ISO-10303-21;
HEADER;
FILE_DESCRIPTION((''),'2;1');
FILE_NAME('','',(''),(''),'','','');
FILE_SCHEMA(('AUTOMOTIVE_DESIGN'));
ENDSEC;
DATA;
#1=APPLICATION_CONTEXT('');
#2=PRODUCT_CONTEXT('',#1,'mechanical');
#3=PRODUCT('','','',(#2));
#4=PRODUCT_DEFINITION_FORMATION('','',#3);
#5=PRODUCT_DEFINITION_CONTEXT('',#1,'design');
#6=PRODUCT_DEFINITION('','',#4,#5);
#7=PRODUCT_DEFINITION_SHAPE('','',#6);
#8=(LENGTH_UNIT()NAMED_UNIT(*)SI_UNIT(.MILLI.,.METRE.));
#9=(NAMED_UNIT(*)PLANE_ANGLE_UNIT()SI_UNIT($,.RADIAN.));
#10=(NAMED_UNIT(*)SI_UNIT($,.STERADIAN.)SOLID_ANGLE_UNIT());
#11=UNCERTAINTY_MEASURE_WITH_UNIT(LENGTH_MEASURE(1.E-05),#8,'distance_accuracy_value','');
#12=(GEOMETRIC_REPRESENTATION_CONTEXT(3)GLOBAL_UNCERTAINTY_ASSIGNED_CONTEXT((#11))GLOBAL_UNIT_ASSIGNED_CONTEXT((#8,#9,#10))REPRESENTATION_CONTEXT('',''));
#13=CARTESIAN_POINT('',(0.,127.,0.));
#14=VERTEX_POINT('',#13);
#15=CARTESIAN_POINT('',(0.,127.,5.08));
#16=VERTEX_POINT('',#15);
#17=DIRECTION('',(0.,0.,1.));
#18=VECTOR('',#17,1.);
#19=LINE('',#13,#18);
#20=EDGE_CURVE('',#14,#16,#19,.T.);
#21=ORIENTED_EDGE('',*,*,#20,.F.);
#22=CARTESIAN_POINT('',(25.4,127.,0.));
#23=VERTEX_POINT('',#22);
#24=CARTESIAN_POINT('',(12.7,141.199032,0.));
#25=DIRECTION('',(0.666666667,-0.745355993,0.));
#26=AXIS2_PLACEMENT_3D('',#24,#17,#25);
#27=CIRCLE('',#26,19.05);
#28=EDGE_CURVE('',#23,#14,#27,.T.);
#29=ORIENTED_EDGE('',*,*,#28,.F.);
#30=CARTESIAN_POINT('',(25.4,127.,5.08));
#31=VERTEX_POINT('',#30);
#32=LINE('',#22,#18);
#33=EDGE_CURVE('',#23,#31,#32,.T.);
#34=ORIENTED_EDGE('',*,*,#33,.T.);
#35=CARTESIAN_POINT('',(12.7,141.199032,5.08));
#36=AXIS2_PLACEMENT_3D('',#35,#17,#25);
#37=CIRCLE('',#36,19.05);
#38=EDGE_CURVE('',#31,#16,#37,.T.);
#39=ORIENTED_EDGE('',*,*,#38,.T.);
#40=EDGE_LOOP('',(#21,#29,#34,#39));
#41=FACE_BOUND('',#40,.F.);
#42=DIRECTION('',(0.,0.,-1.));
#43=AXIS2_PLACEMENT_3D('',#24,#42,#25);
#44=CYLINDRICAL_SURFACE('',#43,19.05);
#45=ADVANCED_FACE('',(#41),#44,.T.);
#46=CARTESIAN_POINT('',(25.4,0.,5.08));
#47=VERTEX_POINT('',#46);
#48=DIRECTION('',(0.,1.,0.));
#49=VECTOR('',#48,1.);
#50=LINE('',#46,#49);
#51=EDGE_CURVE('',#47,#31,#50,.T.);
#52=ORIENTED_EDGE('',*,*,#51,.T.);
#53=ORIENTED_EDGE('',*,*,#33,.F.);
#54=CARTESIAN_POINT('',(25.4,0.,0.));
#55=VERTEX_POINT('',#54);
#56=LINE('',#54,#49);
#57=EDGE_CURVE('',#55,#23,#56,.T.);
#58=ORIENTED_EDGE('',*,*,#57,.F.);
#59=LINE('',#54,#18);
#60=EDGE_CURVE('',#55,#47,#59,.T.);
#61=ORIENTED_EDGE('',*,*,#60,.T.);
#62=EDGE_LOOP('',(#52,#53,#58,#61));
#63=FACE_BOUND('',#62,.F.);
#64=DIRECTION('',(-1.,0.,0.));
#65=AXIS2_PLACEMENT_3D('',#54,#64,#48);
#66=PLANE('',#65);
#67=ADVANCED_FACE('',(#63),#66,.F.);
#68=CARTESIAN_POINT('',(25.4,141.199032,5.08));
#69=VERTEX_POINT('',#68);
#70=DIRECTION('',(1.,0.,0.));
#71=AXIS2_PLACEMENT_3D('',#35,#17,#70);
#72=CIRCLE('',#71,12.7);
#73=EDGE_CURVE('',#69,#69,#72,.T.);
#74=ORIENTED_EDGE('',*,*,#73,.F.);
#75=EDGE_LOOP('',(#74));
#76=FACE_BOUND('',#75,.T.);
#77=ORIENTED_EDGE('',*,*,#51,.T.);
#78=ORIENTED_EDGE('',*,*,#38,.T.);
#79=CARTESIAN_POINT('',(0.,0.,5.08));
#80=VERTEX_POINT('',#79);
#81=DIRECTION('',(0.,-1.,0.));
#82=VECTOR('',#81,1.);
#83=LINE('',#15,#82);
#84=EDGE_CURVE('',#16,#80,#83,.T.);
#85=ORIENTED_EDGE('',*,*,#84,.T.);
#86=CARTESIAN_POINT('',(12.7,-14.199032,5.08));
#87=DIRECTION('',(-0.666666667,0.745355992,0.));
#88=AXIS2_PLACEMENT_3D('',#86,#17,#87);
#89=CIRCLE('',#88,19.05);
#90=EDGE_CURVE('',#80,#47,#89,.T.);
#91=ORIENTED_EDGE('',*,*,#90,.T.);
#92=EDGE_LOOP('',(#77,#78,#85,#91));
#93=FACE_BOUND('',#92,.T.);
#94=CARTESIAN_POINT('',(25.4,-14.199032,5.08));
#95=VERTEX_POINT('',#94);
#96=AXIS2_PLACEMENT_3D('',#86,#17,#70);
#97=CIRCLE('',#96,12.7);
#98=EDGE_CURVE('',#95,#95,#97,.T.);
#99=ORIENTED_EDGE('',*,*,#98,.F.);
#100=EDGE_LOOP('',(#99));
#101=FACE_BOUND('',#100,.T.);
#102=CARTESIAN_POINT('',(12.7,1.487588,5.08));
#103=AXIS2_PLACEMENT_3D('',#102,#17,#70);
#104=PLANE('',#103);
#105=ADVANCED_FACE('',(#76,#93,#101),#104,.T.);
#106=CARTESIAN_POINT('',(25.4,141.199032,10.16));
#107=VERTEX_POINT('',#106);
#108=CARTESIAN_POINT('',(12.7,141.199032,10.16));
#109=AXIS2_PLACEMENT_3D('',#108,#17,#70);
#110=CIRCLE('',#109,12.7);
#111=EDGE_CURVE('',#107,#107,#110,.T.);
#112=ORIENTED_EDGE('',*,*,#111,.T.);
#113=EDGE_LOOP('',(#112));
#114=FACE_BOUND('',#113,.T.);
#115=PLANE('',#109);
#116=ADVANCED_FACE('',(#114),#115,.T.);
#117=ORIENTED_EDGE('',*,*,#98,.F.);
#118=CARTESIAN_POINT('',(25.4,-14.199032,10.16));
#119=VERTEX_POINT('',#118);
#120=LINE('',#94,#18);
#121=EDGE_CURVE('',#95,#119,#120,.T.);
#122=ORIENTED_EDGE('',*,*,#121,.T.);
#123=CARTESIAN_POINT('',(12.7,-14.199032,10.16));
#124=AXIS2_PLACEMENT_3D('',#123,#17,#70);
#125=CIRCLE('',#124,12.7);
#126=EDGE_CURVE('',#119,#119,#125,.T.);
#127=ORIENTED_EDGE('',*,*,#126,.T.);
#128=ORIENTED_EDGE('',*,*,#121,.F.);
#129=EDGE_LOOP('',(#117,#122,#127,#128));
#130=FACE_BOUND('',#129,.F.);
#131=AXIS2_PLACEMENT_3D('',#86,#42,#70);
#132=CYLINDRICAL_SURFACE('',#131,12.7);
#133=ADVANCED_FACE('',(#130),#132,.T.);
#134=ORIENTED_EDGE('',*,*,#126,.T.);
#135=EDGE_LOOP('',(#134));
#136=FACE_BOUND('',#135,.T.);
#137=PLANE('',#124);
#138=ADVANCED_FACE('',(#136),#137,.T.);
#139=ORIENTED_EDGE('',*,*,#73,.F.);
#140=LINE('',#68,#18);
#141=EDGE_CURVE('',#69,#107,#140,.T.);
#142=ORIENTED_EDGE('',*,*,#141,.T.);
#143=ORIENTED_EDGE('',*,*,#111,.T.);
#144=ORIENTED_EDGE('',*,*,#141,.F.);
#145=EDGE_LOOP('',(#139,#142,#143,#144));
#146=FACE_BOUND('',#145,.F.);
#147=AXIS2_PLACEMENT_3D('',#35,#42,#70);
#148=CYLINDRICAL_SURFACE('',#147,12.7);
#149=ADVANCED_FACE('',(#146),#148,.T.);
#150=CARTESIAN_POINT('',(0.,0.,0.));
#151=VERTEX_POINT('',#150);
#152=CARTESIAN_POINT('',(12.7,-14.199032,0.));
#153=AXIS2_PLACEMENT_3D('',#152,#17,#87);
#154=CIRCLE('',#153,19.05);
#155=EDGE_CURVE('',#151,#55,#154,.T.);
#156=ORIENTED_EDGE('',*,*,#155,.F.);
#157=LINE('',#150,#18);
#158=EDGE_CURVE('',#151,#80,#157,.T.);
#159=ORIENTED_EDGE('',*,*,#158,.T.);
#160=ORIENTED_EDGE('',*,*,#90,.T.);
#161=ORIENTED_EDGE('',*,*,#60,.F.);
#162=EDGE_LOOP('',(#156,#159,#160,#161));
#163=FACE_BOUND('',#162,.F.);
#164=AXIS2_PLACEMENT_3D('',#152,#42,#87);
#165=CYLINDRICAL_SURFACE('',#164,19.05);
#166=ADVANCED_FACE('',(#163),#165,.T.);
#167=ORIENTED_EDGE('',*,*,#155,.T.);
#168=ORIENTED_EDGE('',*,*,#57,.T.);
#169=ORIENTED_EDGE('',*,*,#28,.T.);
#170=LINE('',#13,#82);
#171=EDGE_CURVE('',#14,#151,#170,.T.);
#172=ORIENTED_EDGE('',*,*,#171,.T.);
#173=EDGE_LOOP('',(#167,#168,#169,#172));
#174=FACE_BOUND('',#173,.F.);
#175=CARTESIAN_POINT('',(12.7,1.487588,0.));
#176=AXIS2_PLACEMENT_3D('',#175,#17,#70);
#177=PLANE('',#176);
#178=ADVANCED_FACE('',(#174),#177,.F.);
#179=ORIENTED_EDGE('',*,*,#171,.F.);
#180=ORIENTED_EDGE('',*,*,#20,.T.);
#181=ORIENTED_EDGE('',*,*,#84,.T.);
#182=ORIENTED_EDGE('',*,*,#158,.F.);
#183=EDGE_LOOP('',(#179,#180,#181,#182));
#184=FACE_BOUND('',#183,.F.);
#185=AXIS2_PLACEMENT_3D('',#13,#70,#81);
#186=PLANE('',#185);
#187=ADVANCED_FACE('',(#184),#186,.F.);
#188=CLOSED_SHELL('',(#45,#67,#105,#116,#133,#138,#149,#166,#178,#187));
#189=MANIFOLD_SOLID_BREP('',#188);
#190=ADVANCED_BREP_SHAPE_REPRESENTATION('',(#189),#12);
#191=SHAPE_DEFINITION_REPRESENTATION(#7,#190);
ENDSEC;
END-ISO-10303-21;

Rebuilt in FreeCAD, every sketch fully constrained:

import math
import FreeCAD as App
import Part
import Sketcher

V = App.Vector
Q = App.Units.Quantity

doc = App.newDocument("Part")
body = doc.addObject("PartDesign::Body", "Body")

# Sketch on XY plane
sketch1 = body.newObject("Sketcher::SketchObject", "Sketch")
sketch1.AttachmentSupport = (doc.getObject("XY_Plane"), [""])
sketch1.MapMode = "FlatFace"
sketch1.addGeometry(Part.LineSegment(V(25.4, 0, 0), V(25.4, 127, 0)), False)
sketch1.addGeometry(Part.ArcOfCircle(Part.Circle(V(12.7, 141.199032, 0), V(0, 0, 1), 19.05), math.radians(-48.189685), math.radians(228.189685)), False)
sketch1.addGeometry(Part.LineSegment(V(0, 127, 0), V(0, 0, 0)), False)
sketch1.addGeometry(Part.ArcOfCircle(Part.Circle(V(12.7, -14.199032, 0), V(0, 0, 1), 19.05), math.radians(131.810315), math.radians(408.189685)), False)
sketch1.addConstraint(Sketcher.Constraint("Coincident", 0, 2, 1, 1))
sketch1.addConstraint(Sketcher.Constraint("Coincident", 1, 2, 2, 1))
sketch1.addConstraint(Sketcher.Constraint("Coincident", 2, 2, 3, 1))
sketch1.addConstraint(Sketcher.Constraint("Coincident", 3, 2, 0, 1))
sketch1.addConstraint(Sketcher.Constraint("Vertical", 0))
sketch1.addConstraint(Sketcher.Constraint("Vertical", 2))
sketch1.addConstraint(Sketcher.Constraint("Coincident", 2, 2, -1, 1))
sketch1.addConstraint(Sketcher.Constraint("Equal", 1, 3))
sketch1.addConstraint(Sketcher.Constraint("PointOnObject", 3, 2, -1))
sketch1.addConstraint(Sketcher.Constraint("Horizontal", 0, 2, 1, 2))
sketch1.addConstraint(Sketcher.Constraint("DistanceY", 0, 1, 0, 2, Q("5 in")))
sketch1.addConstraint(Sketcher.Constraint("Radius", 1, Q("0.75 in")))
sketch1.addConstraint(Sketcher.Constraint("DistanceX", -1, 1, 0, 2, Q("1 in")))
pad1 = body.newObject("PartDesign::Pad", "Pad")
pad1.Profile = sketch1
pad1.Length = Q("0.2 in")

# Sketch on XY plane
sketch2 = body.newObject("Sketcher::SketchObject", "Sketch001")
sketch2.AttachmentSupport = (doc.getObject("XY_Plane"), [""])
sketch2.MapMode = "FlatFace"
sketch2.AttachmentOffset = App.Placement(V(0, 0, 0.2 * 25.4), App.Rotation())
sketch2.addGeometry(Part.Circle(V(12.7, -14.199032, 0), V(0, 0, 1), 12.7), False)
sketch2.addGeometry(Part.Circle(V(12.7, 141.199032, 0), V(0, 0, 1), 12.7), False)
sketch2.addConstraint(Sketcher.Constraint("Equal", 0, 1))
sketch2.addConstraint(Sketcher.Constraint("Vertical", 0, 3, 1, 3))
sketch2.addConstraint(Sketcher.Constraint("Diameter", 0, Q("1 in")))
sketch2.addConstraint(Sketcher.Constraint("DistanceX", -1, 1, 0, 3, Q("0.5 in")))
sketch2.addConstraint(Sketcher.Constraint("DistanceY", 0, 3, -1, 1, Q("14.199032 mm")))
sketch2.addConstraint(Sketcher.Constraint("DistanceY", -1, 1, 1, 3, Q("141.199032 mm")))
pad2 = body.newObject("PartDesign::Pad", "Pad001")
pad2.Profile = sketch2
pad2.Length = Q("0.2 in")

doc.recompute()
